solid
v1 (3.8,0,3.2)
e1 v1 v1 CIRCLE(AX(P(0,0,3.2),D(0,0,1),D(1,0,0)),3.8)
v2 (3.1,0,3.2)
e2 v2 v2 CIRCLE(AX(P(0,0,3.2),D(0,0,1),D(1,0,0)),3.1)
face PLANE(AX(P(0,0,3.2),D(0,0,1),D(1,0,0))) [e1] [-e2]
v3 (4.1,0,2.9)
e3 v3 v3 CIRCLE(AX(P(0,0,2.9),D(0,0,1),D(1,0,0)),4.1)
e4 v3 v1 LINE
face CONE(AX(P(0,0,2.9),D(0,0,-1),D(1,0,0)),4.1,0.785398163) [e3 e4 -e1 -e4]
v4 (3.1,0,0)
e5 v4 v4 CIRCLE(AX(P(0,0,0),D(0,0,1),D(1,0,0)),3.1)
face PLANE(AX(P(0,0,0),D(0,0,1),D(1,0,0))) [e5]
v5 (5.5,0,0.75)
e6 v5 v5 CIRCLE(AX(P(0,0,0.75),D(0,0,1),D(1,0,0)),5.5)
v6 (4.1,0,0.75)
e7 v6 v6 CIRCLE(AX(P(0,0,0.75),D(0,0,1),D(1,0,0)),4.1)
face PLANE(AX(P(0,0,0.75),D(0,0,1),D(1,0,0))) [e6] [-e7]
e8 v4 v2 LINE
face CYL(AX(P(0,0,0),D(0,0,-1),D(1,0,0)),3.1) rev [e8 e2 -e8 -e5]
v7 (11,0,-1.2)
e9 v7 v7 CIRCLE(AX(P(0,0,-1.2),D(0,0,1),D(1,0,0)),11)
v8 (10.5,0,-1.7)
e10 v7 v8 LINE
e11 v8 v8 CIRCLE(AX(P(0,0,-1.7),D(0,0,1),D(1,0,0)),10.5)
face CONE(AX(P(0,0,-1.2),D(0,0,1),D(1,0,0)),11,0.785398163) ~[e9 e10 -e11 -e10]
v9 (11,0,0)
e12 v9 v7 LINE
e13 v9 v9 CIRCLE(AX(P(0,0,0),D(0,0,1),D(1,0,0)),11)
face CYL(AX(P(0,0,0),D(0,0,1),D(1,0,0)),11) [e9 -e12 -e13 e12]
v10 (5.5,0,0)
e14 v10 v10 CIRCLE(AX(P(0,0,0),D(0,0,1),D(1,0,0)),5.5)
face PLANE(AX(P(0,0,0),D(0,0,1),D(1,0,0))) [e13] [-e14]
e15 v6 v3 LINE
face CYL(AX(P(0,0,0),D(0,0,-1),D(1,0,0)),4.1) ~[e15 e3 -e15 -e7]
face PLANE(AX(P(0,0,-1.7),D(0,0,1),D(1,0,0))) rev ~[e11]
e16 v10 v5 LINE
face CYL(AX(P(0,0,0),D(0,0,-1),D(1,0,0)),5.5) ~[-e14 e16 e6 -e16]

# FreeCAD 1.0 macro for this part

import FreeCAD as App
import Part
import Sketcher
from FreeCAD import Vector
Q = App.Units.Quantity


def edges_at(feature, points):
    """Names of the edges that pass closest to the given points."""
    edges = feature.Shape.Edges
    near = lambda p: min(range(len(edges)), key=lambda i: edges[i].distToShape(Part.Vertex(*p))[0])
    return sorted({f"Edge{near(p) + 1}" for p in points})

doc = App.newDocument("Part")
body = doc.addObject("PartDesign::Body", "Body")

# Sketch on XY plane
sketch1 = doc.addObject("Sketcher::SketchObject", "Sketch")
body.addObject(sketch1)
sketch1.AttachmentSupport = (doc.XY_Plane, [""])
sketch1.MapMode = "FlatFace"
sketch1.addGeometry([
    Part.Circle(Vector(0, 0, 0), Vector(0, 0, 1), 5.5),
    Part.Circle(Vector(0, 0, 0), Vector(0, 0, 1), 4.1),
], False)
sketch1.addConstraint([
    Sketcher.Constraint("Coincident", 0, 3, -1, 1),
    Sketcher.Constraint("Coincident", 1, 3, -1, 1),
    Sketcher.Constraint("Diameter", 0, Q("11 mm")),
    Sketcher.Constraint("Diameter", 1, Q("8.2 mm")),
])
pad1 = doc.addObject("PartDesign::Pad", "Pad")
body.addObject(pad1)
pad1.Profile = sketch1
pad1.Length = 0.75

# Sketch on XY plane
sketch2 = doc.addObject("Sketcher::SketchObject", "Sketch001")
body.addObject(sketch2)
sketch2.AttachmentSupport = (doc.XY_Plane, [""])
sketch2.MapMode = "FlatFace"
sketch2.addGeometry(Part.Circle(Vector(0, 0, 0), Vector(0, 0, 1), 11), False)
sketch2.addConstraint([
    Sketcher.Constraint("Coincident", 0, 3, -1, 1),
    Sketcher.Constraint("Diameter", 0, Q("22 mm")),
])
pad2 = doc.addObject("PartDesign::Pad", "Pad001")
body.addObject(pad2)
pad2.Profile = sketch2
pad2.Length = 1.7
pad2.Reversed = True

# Sketch on XY plane
sketch3 = doc.addObject("Sketcher::SketchObject", "Sketch002")
body.addObject(sketch3)
sketch3.AttachmentSupport = (doc.XY_Plane, [""])
sketch3.MapMode = "FlatFace"
sketch3.addGeometry([
    Part.Circle(Vector(0, 0, 0), Vector(0, 0, 1), 4.1),
    Part.Circle(Vector(0, 0, 0), Vector(0, 0, 1), 3.1),
], False)
sketch3.addConstraint([
    Sketcher.Constraint("Coincident", 0, 3, -1, 1),
    Sketcher.Constraint("Coincident", 1, 3, -1, 1),
    Sketcher.Constraint("Diameter", 0, Q("8.2 mm")),
    Sketcher.Constraint("Diameter", 1, Q("6.2 mm")),
])
pad3 = doc.addObject("PartDesign::Pad", "Pad002")
body.addObject(pad3)
pad3.Profile = sketch3
pad3.Length = 3.2
doc.recompute()

chamfer = doc.addObject("PartDesign::Chamfer", "Chamfer")
body.addObject(chamfer)
chamfer.Base = (pad3, edges_at(pad3, [(-11, 0, -1.7)]))
chamfer.Size = 0.5
doc.recompute()

chamfer2 = doc.addObject("PartDesign::Chamfer", "Chamfer001")
body.addObject(chamfer2)
chamfer2.Base = (chamfer, edges_at(chamfer, [(-4.1, 0, 3.2)]))
chamfer2.Size = 0.3

doc.recompute()
